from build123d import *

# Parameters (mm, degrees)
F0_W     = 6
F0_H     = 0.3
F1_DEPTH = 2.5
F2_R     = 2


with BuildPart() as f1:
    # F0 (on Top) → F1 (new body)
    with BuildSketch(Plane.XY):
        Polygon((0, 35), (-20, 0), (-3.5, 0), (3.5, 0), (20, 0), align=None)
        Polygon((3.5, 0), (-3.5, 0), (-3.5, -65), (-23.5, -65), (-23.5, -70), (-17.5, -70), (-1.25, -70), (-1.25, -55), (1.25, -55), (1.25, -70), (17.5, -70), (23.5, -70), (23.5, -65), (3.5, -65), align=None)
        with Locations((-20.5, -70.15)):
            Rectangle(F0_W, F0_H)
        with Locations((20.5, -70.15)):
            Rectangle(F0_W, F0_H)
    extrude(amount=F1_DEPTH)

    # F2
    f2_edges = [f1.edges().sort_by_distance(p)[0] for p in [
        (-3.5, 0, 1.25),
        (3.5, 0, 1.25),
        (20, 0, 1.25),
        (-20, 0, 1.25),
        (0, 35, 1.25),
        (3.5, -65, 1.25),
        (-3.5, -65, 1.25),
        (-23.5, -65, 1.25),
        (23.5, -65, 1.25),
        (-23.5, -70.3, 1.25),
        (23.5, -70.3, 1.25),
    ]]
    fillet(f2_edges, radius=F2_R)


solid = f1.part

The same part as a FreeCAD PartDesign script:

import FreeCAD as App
import Part
import Sketcher
from FreeCAD import Vector
Q = App.Units.Quantity


def edges_at(feature, points):
    """Names of the edges that pass closest to the given points."""
    edges = feature.Shape.Edges
    near = lambda p: min(range(len(edges)), key=lambda i: edges[i].distToShape(Part.Vertex(*p))[0])
    return sorted({f"Edge{near(p) + 1}" for p in points})

doc = App.newDocument("Part")
body = doc.addObject("PartDesign::Body", "Body")

# Sketch on XY plane
sketch1 = body.newObject("Sketcher::SketchObject", "Sketch")
sketch1.AttachmentSupport = (doc.getObject("XY_Plane"), [""])
sketch1.MapMode = "FlatFace"
sketch1.addGeometry(Part.LineSegment(Vector(0, 35, 0), Vector(-20, 0, 0)), False)
sketch1.addGeometry(Part.LineSegment(Vector(-20, 0, 0), Vector(-3.5, 0, 0)), False)
sketch1.addGeometry(Part.LineSegment(Vector(-3.5, 0, 0), Vector(-3.5, -65, 0)), False)
sketch1.addGeometry(Part.LineSegment(Vector(-3.5, -65, 0), Vector(-23.5, -65, 0)), False)
sketch1.addGeometry(Part.LineSegment(Vector(-23.5, -65, 0), Vector(-23.5, -70.3, 0)), False)
sketch1.addGeometry(Part.LineSegment(Vector(-23.5, -70.3, 0), Vector(-17.5, -70.3, 0)), False)
sketch1.addGeometry(Part.LineSegment(Vector(-17.5, -70.3, 0), Vector(-17.5, -70, 0)), False)
sketch1.addGeometry(Part.LineSegment(Vector(-17.5, -70, 0), Vector(-1.25, -70, 0)), False)
sketch1.addGeometry(Part.LineSegment(Vector(-1.25, -70, 0), Vector(-1.25, -55, 0)), False)
sketch1.addGeometry(Part.LineSegment(Vector(-1.25, -55, 0), Vector(1.25, -55, 0)), False)
sketch1.addGeometry(Part.LineSegment(Vector(1.25, -55, 0), Vector(1.25, -70, 0)), False)
sketch1.addGeometry(Part.LineSegment(Vector(1.25, -70, 0), Vector(17.5, -70, 0)), False)
sketch1.addGeometry(Part.LineSegment(Vector(17.5, -70, 0), Vector(17.5, -70.3, 0)), False)
sketch1.addGeometry(Part.LineSegment(Vector(17.5, -70.3, 0), Vector(23.5, -70.3, 0)), False)
sketch1.addGeometry(Part.LineSegment(Vector(23.5, -70.3, 0), Vector(23.5, -65, 0)), False)
sketch1.addGeometry(Part.LineSegment(Vector(23.5, -65, 0), Vector(3.5, -65, 0)), False)
sketch1.addGeometry(Part.LineSegment(Vector(3.5, -65, 0), Vector(3.5, 0, 0)), False)
sketch1.addGeometry(Part.LineSegment(Vector(3.5, 0, 0), Vector(20, 0, 0)), False)
sketch1.addGeometry(Part.LineSegment(Vector(20, 0, 0), Vector(0, 35, 0)), False)
sketch1.addConstraint(Sketcher.Constraint("Coincident", 0, 2, 1, 1))
sketch1.addConstraint(Sketcher.Constraint("Coincident", 1, 2, 2, 1))
sketch1.addConstraint(Sketcher.Constraint("Coincident", 2, 2, 3, 1))
sketch1.addConstraint(Sketcher.Constraint("Coincident", 3, 2, 4, 1))
sketch1.addConstraint(Sketcher.Constraint("Coincident", 4, 2, 5, 1))
sketch1.addConstraint(Sketcher.Constraint("Coincident", 5, 2, 6, 1))
sketch1.addConstraint(Sketcher.Constraint("Coincident", 6, 2, 7, 1))
sketch1.addConstraint(Sketcher.Constraint("Coincident", 7, 2, 8, 1))
sketch1.addConstraint(Sketcher.Constraint("Coincident", 8, 2, 9, 1))
sketch1.addConstraint(Sketcher.Constraint("Coincident", 9, 2, 10, 1))
sketch1.addConstraint(Sketcher.Constraint("Coincident", 10, 2, 11, 1))
sketch1.addConstraint(Sketcher.Constraint("Coincident", 11, 2, 12, 1))
sketch1.addConstraint(Sketcher.Constraint("Coincident", 12, 2, 13, 1))
sketch1.addConstraint(Sketcher.Constraint("Coincident", 13, 2, 14, 1))
sketch1.addConstraint(Sketcher.Constraint("Coincident", 14, 2, 15, 1))
sketch1.addConstraint(Sketcher.Constraint("Coincident", 15, 2, 16, 1))
sketch1.addConstraint(Sketcher.Constraint("Coincident", 16, 2, 17, 1))
sketch1.addConstraint(Sketcher.Constraint("Coincident", 17, 2, 18, 1))
sketch1.addConstraint(Sketcher.Constraint("Coincident", 18, 2, 0, 1))
sketch1.addConstraint(Sketcher.Constraint("Horizontal", 1))
sketch1.addConstraint(Sketcher.Constraint("Vertical", 2))
sketch1.addConstraint(Sketcher.Constraint("Horizontal", 3))
sketch1.addConstraint(Sketcher.Constraint("Vertical", 4))
sketch1.addConstraint(Sketcher.Constraint("Horizontal", 5))
sketch1.addConstraint(Sketcher.Constraint("Vertical", 6))
sketch1.addConstraint(Sketcher.Constraint("Horizontal", 7))
sketch1.addConstraint(Sketcher.Constraint("Vertical", 8))
sketch1.addConstraint(Sketcher.Constraint("Horizontal", 9))
sketch1.addConstraint(Sketcher.Constraint("Vertical", 10))
sketch1.addConstraint(Sketcher.Constraint("Horizontal", 11))
sketch1.addConstraint(Sketcher.Constraint("Vertical", 12))
sketch1.addConstraint(Sketcher.Constraint("Horizontal", 13))
sketch1.addConstraint(Sketcher.Constraint("Vertical", 14))
sketch1.addConstraint(Sketcher.Constraint("Horizontal", 15))
sketch1.addConstraint(Sketcher.Constraint("Vertical", 16))
sketch1.addConstraint(Sketcher.Constraint("Horizontal", 17))
sketch1.addConstraint(Sketcher.Constraint("Symmetric", 1, 2, 16, 2, -1, 1))
sketch1.addConstraint(Sketcher.Constraint("Symmetric", 7, 2, 10, 2, -2))
sketch1.addConstraint(Sketcher.Constraint("Symmetric", 5, 2, 12, 2, -2))
sketch1.addConstraint(Sketcher.Constraint("Symmetric", 3, 2, 14, 2, -2))
sketch1.addConstraint(Sketcher.Constraint("Symmetric", 0, 2, 17, 2, -2))
sketch1.addConstraint(Sketcher.Constraint("PointOnObject", 18, 2, -2))
sketch1.addConstraint(Sketcher.Constraint("DistanceX", 3, 2, 3, 1, Q("20 mm")))
sketch1.addConstraint(Sketcher.Constraint("DistanceX", 5, 1, 5, 2, Q("6 mm")))
sketch1.addConstraint(Sketcher.Constraint("DistanceY", 2, 2, 2, 1, Q("65 mm")))
sketch1.addConstraint(Sketcher.Constraint("DistanceY", 8, 1, 8, 2, Q("15 mm")))
sketch1.addConstraint(Sketcher.Constraint("DistanceX", 1, 1, 1, 2, Q("16.5 mm")))
sketch1.addConstraint(Sketcher.Constraint("DistanceX", 9, 1, 9, 2, Q("2.5 mm")))
sketch1.addConstraint(Sketcher.Constraint("DistanceY", 4, 2, 4, 1, Q("5.3 mm")))
sketch1.addConstraint(Sketcher.Constraint("DistanceY", 6, 1, 6, 2, Q("0.3 mm")))
sketch1.addConstraint(Sketcher.Constraint("DistanceX", 0, 2, -1, 1, Q("20 mm")))
sketch1.addConstraint(Sketcher.Constraint("DistanceY", -1, 1, 18, 2, Q("35 mm")))
pad1 = body.newObject("PartDesign::Pad", "Pad")
pad1.Profile = sketch1
pad1.Length = 2.5
doc.recompute()

fillet = body.newObject("PartDesign::Fillet", "Fillet")
fillet.Base = (pad1, edges_at(pad1, [
    (-3.5, 0, 1.25),
    (3.5, 0, 1.25),
    (20, 0, 1.25),
    (-20, 0, 1.25),
    (0, 35, 1.25),
    (3.5, -65, 1.25),
    (-3.5, -65, 1.25),
    (-23.5, -65, 1.25),
    (23.5, -65, 1.25),
    (-23.5, -70.3, 1.25),
    (23.5, -70.3, 1.25),
]))
fillet.Radius = 2

doc.recompute()
